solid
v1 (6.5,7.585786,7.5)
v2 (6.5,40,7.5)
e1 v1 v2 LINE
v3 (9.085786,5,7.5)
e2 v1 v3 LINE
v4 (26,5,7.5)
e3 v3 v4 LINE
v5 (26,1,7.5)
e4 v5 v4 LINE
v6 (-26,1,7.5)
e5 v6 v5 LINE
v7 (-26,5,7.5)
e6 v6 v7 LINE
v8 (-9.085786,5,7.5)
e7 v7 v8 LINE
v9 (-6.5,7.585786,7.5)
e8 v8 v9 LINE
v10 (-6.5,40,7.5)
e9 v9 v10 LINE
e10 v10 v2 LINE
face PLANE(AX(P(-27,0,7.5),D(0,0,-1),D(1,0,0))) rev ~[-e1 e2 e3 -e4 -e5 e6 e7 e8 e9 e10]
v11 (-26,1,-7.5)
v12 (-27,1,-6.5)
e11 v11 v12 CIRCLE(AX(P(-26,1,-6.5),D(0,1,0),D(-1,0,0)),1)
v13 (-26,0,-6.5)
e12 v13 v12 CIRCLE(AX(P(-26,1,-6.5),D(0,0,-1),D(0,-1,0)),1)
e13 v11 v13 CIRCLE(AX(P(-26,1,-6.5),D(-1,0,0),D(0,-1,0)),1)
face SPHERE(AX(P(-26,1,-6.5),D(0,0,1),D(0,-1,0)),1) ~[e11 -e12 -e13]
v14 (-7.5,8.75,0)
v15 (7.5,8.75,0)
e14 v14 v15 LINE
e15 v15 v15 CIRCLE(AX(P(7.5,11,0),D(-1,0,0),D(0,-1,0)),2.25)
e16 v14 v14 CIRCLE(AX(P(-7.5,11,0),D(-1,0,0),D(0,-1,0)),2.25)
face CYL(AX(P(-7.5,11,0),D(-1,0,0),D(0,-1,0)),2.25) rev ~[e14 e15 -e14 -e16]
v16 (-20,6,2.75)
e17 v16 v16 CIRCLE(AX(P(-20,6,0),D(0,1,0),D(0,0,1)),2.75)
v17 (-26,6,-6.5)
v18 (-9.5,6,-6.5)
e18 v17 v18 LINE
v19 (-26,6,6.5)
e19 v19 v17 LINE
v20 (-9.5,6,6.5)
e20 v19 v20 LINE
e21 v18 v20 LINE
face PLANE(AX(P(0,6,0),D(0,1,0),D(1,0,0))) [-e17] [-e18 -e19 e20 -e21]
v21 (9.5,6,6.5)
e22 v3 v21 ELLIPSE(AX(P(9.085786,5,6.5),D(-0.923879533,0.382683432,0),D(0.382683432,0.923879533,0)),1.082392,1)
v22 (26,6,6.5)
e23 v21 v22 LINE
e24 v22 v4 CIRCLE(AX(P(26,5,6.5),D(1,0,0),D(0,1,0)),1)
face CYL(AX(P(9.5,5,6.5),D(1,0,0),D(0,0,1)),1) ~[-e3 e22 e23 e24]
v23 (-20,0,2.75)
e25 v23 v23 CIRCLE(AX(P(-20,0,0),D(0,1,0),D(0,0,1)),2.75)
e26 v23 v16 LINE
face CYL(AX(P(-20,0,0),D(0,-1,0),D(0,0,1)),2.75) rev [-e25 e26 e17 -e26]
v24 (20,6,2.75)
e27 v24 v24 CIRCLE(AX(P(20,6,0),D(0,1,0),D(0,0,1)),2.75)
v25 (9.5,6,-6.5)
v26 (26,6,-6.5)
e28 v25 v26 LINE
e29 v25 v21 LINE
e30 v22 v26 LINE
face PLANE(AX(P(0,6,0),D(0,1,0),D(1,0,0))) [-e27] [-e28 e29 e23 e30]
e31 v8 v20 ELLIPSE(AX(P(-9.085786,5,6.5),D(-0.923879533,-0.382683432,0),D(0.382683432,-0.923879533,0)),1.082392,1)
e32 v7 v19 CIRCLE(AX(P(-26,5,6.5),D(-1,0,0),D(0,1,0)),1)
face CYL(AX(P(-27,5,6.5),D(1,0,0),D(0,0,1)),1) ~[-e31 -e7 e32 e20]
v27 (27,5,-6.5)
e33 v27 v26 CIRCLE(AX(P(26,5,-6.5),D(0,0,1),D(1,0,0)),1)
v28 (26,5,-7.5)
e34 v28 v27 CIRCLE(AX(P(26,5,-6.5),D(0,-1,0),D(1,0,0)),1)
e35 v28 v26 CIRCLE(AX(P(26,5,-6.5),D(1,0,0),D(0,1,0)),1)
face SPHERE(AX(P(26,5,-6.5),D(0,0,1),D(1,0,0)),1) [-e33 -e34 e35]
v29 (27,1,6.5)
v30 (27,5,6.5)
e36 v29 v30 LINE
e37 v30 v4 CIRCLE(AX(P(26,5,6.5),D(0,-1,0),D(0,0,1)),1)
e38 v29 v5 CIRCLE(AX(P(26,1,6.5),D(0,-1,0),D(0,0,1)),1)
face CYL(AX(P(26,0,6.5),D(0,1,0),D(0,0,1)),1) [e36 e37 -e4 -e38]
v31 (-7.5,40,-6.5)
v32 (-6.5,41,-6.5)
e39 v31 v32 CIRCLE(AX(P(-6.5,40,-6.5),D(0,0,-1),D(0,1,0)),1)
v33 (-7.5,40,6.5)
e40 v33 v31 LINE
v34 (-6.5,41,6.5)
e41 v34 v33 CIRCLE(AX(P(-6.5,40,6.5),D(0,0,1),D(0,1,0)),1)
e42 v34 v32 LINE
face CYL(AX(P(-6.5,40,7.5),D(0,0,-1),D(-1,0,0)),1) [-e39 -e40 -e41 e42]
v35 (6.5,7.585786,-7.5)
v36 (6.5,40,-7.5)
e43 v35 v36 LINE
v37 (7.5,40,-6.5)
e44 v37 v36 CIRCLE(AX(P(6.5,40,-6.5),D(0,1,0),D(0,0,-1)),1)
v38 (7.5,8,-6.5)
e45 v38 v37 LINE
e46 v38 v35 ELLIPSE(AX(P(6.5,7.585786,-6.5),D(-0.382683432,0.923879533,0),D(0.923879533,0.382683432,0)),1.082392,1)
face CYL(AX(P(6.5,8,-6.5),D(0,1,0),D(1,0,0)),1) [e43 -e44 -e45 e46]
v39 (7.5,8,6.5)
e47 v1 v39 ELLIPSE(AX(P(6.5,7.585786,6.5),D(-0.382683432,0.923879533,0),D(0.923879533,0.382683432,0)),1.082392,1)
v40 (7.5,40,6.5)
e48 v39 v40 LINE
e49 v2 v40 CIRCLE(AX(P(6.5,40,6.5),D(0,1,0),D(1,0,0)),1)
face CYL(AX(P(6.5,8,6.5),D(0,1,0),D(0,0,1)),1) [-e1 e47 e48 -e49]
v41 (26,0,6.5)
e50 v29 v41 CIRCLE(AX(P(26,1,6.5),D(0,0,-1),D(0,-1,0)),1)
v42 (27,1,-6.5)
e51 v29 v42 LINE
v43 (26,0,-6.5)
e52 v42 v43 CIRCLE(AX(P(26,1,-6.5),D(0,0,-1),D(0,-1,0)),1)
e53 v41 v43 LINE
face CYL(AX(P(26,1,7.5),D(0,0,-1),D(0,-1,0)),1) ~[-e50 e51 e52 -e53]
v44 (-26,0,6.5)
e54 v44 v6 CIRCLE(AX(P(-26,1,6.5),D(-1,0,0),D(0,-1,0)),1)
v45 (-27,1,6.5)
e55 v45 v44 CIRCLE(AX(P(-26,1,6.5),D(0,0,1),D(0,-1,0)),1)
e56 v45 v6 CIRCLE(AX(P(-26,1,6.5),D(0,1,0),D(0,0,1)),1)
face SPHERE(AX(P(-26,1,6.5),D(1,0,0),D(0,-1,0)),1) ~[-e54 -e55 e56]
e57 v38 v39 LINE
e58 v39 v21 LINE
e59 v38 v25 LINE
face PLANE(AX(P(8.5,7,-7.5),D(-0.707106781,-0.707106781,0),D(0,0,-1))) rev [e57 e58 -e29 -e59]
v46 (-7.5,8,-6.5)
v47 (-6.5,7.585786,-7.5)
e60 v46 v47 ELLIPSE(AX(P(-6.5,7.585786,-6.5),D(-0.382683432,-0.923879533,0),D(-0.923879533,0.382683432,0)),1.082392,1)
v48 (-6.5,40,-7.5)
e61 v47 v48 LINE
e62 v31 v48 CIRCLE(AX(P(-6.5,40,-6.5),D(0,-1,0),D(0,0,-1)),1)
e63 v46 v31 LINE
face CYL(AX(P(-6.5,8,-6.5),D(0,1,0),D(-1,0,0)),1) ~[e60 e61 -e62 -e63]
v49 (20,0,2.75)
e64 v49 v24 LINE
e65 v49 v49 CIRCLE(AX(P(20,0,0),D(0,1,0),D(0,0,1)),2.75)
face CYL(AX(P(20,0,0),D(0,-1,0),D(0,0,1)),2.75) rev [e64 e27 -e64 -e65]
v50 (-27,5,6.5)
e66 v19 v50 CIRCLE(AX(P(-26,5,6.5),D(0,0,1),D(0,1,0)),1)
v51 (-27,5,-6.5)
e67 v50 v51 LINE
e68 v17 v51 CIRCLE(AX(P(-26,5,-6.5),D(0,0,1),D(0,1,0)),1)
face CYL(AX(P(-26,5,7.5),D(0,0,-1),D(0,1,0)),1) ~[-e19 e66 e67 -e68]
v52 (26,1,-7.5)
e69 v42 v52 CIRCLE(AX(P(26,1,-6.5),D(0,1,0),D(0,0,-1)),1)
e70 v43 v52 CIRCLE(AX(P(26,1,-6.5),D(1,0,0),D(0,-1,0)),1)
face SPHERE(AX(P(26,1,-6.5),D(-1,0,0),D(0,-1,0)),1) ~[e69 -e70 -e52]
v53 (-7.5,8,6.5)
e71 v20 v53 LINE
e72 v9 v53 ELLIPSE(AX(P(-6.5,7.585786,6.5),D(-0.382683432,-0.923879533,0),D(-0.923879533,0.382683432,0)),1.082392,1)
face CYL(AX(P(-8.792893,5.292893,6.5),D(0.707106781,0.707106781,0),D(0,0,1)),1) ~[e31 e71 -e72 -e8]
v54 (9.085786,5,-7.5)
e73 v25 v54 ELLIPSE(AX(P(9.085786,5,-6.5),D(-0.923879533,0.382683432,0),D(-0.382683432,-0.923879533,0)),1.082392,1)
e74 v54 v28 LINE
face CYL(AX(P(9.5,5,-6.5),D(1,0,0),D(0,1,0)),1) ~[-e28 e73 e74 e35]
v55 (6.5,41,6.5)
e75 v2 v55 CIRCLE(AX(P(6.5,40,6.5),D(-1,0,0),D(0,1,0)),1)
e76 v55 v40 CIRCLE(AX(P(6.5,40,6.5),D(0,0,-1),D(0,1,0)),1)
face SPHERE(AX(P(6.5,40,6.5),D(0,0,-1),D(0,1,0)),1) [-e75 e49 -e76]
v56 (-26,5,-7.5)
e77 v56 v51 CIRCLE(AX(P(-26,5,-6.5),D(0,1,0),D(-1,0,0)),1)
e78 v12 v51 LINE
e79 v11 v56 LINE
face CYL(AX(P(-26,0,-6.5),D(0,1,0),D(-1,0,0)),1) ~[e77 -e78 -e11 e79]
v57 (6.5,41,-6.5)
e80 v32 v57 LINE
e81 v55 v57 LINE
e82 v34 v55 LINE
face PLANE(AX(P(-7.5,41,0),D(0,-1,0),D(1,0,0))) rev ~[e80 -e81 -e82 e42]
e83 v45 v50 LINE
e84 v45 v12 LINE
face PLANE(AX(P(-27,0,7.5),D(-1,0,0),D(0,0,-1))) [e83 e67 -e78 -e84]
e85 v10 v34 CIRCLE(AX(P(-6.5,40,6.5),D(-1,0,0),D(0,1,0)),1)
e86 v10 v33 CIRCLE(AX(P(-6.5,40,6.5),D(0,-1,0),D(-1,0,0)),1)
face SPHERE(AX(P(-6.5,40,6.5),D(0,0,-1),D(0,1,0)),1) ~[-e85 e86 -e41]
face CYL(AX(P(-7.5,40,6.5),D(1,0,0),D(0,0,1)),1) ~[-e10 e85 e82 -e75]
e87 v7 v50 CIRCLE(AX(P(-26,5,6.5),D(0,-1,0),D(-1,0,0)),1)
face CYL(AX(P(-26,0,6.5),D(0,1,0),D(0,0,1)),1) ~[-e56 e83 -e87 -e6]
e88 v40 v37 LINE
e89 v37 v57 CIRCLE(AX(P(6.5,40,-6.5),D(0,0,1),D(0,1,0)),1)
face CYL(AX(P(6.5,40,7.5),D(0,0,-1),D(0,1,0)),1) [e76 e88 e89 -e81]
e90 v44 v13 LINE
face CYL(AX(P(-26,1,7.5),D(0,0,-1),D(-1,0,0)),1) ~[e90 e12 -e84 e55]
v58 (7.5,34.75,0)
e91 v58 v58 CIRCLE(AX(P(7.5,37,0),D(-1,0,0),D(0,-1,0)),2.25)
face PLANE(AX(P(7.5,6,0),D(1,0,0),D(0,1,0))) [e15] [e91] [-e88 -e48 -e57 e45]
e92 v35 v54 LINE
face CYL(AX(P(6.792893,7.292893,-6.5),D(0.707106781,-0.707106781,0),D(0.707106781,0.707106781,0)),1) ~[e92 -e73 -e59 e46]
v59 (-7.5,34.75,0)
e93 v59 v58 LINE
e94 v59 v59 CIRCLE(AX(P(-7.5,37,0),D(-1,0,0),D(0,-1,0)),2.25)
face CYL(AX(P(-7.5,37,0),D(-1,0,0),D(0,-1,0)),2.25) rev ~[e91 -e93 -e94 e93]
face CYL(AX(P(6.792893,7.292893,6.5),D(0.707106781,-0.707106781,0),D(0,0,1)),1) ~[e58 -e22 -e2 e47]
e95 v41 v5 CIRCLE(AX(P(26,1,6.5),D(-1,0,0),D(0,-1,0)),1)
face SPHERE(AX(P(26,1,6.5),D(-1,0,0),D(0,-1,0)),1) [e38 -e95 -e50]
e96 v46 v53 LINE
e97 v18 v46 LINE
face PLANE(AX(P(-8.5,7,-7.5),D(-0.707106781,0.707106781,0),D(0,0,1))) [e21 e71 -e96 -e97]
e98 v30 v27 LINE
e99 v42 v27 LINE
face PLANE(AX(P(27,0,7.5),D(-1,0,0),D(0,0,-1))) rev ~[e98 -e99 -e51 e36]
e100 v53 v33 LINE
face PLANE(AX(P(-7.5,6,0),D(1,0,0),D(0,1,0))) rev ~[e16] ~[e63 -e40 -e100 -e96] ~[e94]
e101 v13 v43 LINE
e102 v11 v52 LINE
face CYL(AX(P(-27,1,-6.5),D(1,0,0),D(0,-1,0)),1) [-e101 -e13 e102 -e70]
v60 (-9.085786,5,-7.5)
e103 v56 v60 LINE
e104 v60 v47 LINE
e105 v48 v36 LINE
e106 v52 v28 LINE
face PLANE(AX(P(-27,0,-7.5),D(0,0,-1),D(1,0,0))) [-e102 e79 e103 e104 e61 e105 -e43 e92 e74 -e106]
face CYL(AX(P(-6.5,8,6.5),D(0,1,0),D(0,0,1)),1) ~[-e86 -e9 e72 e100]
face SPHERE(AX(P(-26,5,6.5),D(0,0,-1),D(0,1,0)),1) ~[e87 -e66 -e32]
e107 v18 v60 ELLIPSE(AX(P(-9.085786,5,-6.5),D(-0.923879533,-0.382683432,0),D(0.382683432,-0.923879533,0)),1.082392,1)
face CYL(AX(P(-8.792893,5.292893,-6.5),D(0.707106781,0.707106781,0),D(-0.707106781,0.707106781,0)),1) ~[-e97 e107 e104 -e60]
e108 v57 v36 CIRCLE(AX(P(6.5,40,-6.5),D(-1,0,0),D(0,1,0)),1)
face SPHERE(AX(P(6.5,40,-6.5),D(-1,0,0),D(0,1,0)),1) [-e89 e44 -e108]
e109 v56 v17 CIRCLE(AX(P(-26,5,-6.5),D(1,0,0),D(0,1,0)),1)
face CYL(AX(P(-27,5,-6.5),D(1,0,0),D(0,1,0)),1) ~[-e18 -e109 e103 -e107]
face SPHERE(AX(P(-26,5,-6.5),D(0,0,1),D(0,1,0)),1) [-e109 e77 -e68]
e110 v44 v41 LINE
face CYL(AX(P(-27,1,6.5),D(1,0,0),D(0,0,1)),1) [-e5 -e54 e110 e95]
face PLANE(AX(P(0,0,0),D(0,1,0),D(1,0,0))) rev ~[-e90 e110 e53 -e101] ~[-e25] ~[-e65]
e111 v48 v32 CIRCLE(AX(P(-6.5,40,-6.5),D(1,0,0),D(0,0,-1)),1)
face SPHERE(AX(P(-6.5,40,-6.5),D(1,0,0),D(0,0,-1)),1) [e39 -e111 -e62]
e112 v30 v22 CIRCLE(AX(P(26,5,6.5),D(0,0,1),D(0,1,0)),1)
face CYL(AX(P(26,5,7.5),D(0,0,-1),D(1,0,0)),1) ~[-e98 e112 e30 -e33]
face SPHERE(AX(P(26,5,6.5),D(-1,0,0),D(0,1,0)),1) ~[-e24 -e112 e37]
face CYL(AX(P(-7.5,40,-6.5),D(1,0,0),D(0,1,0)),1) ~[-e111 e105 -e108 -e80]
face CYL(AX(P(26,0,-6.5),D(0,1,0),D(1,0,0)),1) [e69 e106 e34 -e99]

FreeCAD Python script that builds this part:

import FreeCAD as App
import Part
import Sketcher
Q = App.Units.Quantity


def edges_at(feature, points):
    """Names of the edges that pass closest to the given points."""
    edges = feature.Shape.Edges
    near = lambda p: min(range(len(edges)), key=lambda i: edges[i].distToShape(Part.Vertex(*p))[0])
    return sorted({f"Edge{near(p) + 1}" for p in points})

doc = App.newDocument("Part")
body = doc.addObject("PartDesign::Body", "Body")

# Sketch on XZ plane
sketch1 = body.newObject("Sketcher::SketchObject", "Sketch")
sketch1.AttachmentSupport = (doc.getObject("XZ_Plane"), [""])
sketch1.MapMode = "FlatFace"
sketch1.addGeometry([
    Part.LineSegment(App.Vector(-27, -7.5, 0), App.Vector(-27, 7.5, 0)),  # 0
    Part.LineSegment(App.Vector(-27, 7.5, 0), App.Vector(27, 7.5, 0)),  # 1
    Part.LineSegment(App.Vector(27, 7.5, 0), App.Vector(27, -7.5, 0)),  # 2
    Part.LineSegment(App.Vector(27, -7.5, 0), App.Vector(-27, -7.5, 0)),  # 3
    Part.Circle(App.Vector(-20, 0, 0), App.Vector(0, 0, 1), 2.8),  # 4
    Part.Circle(App.Vector(20, 0, 0), App.Vector(0, 0, 1), 2.8),  # 5
], False)
sketch1.addConstraint([
    Sketcher.Constraint("Coincident", 0, 2, 1, 1),
    Sketcher.Constraint("Coincident", 1, 2, 2, 1),
    Sketcher.Constraint("Coincident", 2, 2, 3, 1),
    Sketcher.Constraint("Coincident", 3, 2, 0, 1),
    Sketcher.Constraint("Vertical", 0),
    Sketcher.Constraint("Horizontal", 1),
    Sketcher.Constraint("Vertical", 2),
    Sketcher.Constraint("Horizontal", 3),
    Sketcher.Constraint("Equal", 4, 5),
    Sketcher.Constraint("Symmetric", 4, 3, 5, 3, -1, 1),
    Sketcher.Constraint("Symmetric", 0, 2, 2, 2, -1, 1),
    Sketcher.Constraint("PointOnObject", 4, 3, -1),
    Sketcher.Constraint("Diameter", 4, Q("5.5 mm")),
    Sketcher.Constraint("DistanceX", 1, 1, 1, 2, Q("54 mm")),
    Sketcher.Constraint("DistanceY", 0, 1, 0, 2, Q("15 mm")),
    Sketcher.Constraint("DistanceX", 4, 3, -1, 1, Q("20 mm")),
])
pad1 = body.newObject("PartDesign::Pad", "Pad")
pad1.Profile = sketch1
pad1.Length = 6
pad1.Reversed = True

# Sketch on XY plane
sketch2 = body.newObject("Sketcher::SketchObject", "Sketch001")
sketch2.AttachmentSupport = (doc.getObject("XY_Plane"), [""])
sketch2.MapMode = "FlatFace"
sketch2.addGeometry([
    Part.LineSegment(App.Vector(-8, 41, 0), App.Vector(-8, 6, 0)),
    Part.LineSegment(App.Vector(-8, 6, 0), App.Vector(8, 6, 0)),
    Part.LineSegment(App.Vector(8, 6, 0), App.Vector(8, 41, 0)),
    Part.LineSegment(App.Vector(8, 41, 0), App.Vector(-8, 41, 0)),
], False)
sketch2.addConstraint([
    Sketcher.Constraint("Coincident", 0, 2, 1, 1),
    Sketcher.Constraint("Coincident", 1, 2, 2, 1),
    Sketcher.Constraint("Coincident", 2, 2, 3, 1),
    Sketcher.Constraint("Coincident", 3, 2, 0, 1),
    Sketcher.Constraint("Vertical", 0),
    Sketcher.Constraint("Horizontal", 1),
    Sketcher.Constraint("Vertical", 2),
    Sketcher.Constraint("Horizontal", 3),
    Sketcher.Constraint("DistanceX", 1, 1, 1, 2, Q("15 mm")),
    Sketcher.Constraint("DistanceY", 0, 2, 0, 1, Q("35 mm")),
    Sketcher.Constraint("DistanceY", -1, 1, 0, 2, Q("6 mm")),
    Sketcher.Constraint("DistanceX", 0, 2, -1, 1, Q("7.5 mm")),
])
pad2 = body.newObject("PartDesign::Pad", "Pad001")
pad2.Profile = sketch2
pad2.Length = 15
pad2.Midplane = True

# Sketch on YZ plane
sketch3 = body.newObject("Sketcher::SketchObject", "Sketch002")
sketch3.AttachmentSupport = (doc.getObject("YZ_Plane"), [""])
sketch3.MapMode = "FlatFace"
sketch3.AttachmentOffset = App.Placement(App.Vector(0, 0, -7.5), App.Rotation())
sketch3.addGeometry([
    Part.Circle(App.Vector(11, 0, 0), App.Vector(0, 0, 1), 2.2),
    Part.Circle(App.Vector(37, 0, 0), App.Vector(0, 0, 1), 2.2),
], False)
sketch3.addConstraint([
    Sketcher.Constraint("Equal", 0, 1),
    Sketcher.Constraint("PointOnObject", 0, 3, -1),
    Sketcher.Constraint("PointOnObject", 1, 3, -1),
    Sketcher.Constraint("Diameter", 0, Q("4.5 mm")),
    Sketcher.Constraint("DistanceX", -1, 1, 0, 3, Q("11 mm")),
    Sketcher.Constraint("DistanceX", -1, 1, 1, 3, Q("37 mm")),
])
pocket1 = body.newObject("PartDesign::Pocket", "Pocket")
pocket1.Profile = sketch3
pocket1.Length = 15
pocket1.Reversed = True
doc.recompute()

chamfer = body.newObject("PartDesign::Chamfer", "Chamfer")
chamfer.Base = (pocket1, edges_at(pocket1, [(7.5, 6, 0), (-7.5, 6, 0)]))
chamfer.Size = 2
doc.recompute()

fillet = body.newObject("PartDesign::Fillet", "Fillet")
fillet.Base = (chamfer, edges_at(chamfer, [
    (-27, 6, 0),
    (-18.25, 6, 7.5),
    (0, 41, -7.5),
    (7.5, 41, 0),
    (-7.5, 24.5, -7.5),
    (-7.5, 41, 0),
    (0, 41, 7.5),
    (-7.5, 24.5, 7.5),
    (7.5, 24.5, -7.5),
    (7.5, 24.5, 7.5),
    (18.25, 6, 7.5),
    (-18.25, 6, -7.5),
    (27, 6, 0),
    (0, 0, 7.5),
    (8.5, 7, -7.5),
    (8.5, 7, 7.5),
    (-8.5, 7, -7.5),
    (-8.5, 7, 7.5),
    (-27, 0, 0),
    (0, 0, -7.5),
    (27, 0, 0),
    (27, 3, 7.5),
    (-27, 3, 7.5),
    (-27, 3, -7.5),
    (27, 3, -7.5),
    (18.25, 6, -7.5),
]))
fillet.Radius = 1

doc.recompute()
